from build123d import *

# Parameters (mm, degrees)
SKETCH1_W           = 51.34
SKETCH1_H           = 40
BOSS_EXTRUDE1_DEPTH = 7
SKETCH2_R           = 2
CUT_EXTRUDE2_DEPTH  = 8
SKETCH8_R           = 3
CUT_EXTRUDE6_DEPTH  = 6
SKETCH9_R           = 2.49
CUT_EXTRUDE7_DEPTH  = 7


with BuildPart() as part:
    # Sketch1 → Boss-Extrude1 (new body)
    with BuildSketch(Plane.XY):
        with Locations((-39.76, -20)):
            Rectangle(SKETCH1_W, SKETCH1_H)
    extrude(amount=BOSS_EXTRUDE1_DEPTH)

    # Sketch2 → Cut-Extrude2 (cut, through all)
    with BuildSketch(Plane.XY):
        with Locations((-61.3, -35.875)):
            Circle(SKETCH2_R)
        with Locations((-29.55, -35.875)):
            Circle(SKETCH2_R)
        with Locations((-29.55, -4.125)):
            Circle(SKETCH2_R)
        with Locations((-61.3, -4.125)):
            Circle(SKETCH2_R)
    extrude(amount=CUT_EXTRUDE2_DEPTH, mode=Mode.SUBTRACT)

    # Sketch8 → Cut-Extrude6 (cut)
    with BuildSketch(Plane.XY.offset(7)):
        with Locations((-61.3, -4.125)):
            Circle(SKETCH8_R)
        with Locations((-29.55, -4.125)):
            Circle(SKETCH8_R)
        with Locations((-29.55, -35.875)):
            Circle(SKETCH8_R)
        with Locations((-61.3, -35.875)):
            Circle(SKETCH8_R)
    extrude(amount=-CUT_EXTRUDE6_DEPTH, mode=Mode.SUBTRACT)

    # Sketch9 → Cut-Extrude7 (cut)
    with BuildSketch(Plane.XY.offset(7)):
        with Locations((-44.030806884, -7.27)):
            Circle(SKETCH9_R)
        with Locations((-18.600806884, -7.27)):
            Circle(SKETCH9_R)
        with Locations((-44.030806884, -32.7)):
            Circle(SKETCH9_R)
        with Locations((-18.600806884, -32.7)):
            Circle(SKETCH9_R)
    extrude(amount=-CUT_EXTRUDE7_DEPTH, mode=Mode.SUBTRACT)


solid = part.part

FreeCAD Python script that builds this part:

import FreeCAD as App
import Part
import Sketcher
from FreeCAD import Vector
Q = App.Units.Quantity


def add_polygon(sketch, points):
    """Adds a closed chain of lines whose ends are joined by coincident constraints."""
    first, n = sketch.GeometryCount, len(points)
    for a, b in zip(points, points[1:] + points[:1]):
        sketch.addGeometry(Part.LineSegment(App.Vector(*a, 0), App.Vector(*b, 0)), False)
    for i in range(n):
        sketch.addConstraint(Sketcher.Constraint("Coincident", first + i, 2, first + (i + 1) % n, 1))

doc = App.newDocument("Part")
body = doc.addObject("PartDesign::Body", "Body")

sketch1 = body.newObject("Sketcher::SketchObject", "Sketch")
sketch1.AttachmentSupport = (doc.getObject("XY_Plane"), [""])
sketch1.MapMode = "FlatFace"
add_polygon(sketch1, [(-65, 0), (-65, -40), (-14, -40), (-14, 0)])
sketch1.addConstraint([
    Sketcher.Constraint("Vertical", 0),
    Sketcher.Constraint("Horizontal", 1),
    Sketcher.Constraint("Vertical", 2),
    Sketcher.Constraint("Horizontal", 3),
    Sketcher.Constraint("PointOnObject", 2, 2, -1),
    Sketcher.Constraint("DistanceY", 0, 2, 0, 1, Q("40 mm")),
    Sketcher.Constraint("DistanceX", 1, 1, 1, 2, Q("51.34 mm")),
    Sketcher.Constraint("DistanceX", 0, 2, -1, 1, Q("65.43 mm")),
])
pad1 = body.newObject("PartDesign::Pad", "Pad")
pad1.Profile = sketch1
pad1.Length = 7

sketch2 = body.newObject("Sketcher::SketchObject", "Sketch001")
sketch2.AttachmentSupport = (doc.getObject("XY_Plane"), [""])
sketch2.MapMode = "FlatFace"
sketch2.addGeometry([
    Part.Circle(Vector(-61.3, -35.9, 0), Vector(0, 0, 1), 2),
    Part.Circle(Vector(-29.6, -35.9, 0), Vector(0, 0, 1), 2),
    Part.Circle(Vector(-29.6, -4.1, 0), Vector(0, 0, 1), 2),
    Part.Circle(Vector(-61.3, -4.1, 0), Vector(0, 0, 1), 2),
], False)
sketch2.addConstraint([
    Sketcher.Constraint("Equal", 0, 1),
    Sketcher.Constraint("Equal", 1, 2),
    Sketcher.Constraint("Equal", 2, 3),
    Sketcher.Constraint("Horizontal", 0, 3, 1, 3),
    Sketcher.Constraint("Horizontal", 2, 3, 3, 3),
    Sketcher.Constraint("Vertical", 1, 3, 2, 3),
    Sketcher.Constraint("Vertical", 0, 3, 3, 3),
    Sketcher.Constraint("Diameter", 0, Q("4 mm")),
    Sketcher.Constraint("DistanceX", 0, 3, -1, 1, Q("61.3 mm")),
    Sketcher.Constraint("DistanceX", 1, 3, -1, 1, Q("29.55 mm")),
    Sketcher.Constraint("DistanceY", 1, 3, 2, 3, Q("31.75 mm")),
    Sketcher.Constraint("DistanceY", 0, 3, -1, 1, Q("35.875 mm")),
])
pocket1 = body.newObject("PartDesign::Pocket", "Pocket")
pocket1.Profile = sketch2
pocket1.Type = "ThroughAll"
pocket1.Reversed = True

sketch3 = body.newObject("Sketcher::SketchObject", "Sketch002")
sketch3.AttachmentSupport = (doc.getObject("XY_Plane"), [""])
sketch3.MapMode = "FlatFace"
sketch3.AttachmentOffset = App.Placement(Vector(0, 0, 7), App.Rotation())
sketch3.addGeometry([
    Part.Circle(Vector(-61.3, -4.1, 0), Vector(0, 0, 1), 3),
    Part.Circle(Vector(-29.6, -4.1, 0), Vector(0, 0, 1), 3),
    Part.Circle(Vector(-29.6, -35.9, 0), Vector(0, 0, 1), 3),
    Part.Circle(Vector(-61.3, -35.9, 0), Vector(0, 0, 1), 3),
], False)
sketch3.addConstraint([
    Sketcher.Constraint("Equal", 0, 1),
    Sketcher.Constraint("Equal", 1, 2),
    Sketcher.Constraint("Equal", 2, 3),
    Sketcher.Constraint("Horizontal", 0, 3, 1, 3),
    Sketcher.Constraint("Horizontal", 2, 3, 3, 3),
    Sketcher.Constraint("Vertical", 1, 3, 2, 3),
    Sketcher.Constraint("Vertical", 0, 3, 3, 3),
    Sketcher.Constraint("Diameter", 0, Q("6 mm")),
    Sketcher.Constraint("DistanceX", 0, 3, -1, 1, Q("61.3 mm")),
    Sketcher.Constraint("DistanceX", 1, 3, -1, 1, Q("29.55 mm")),
    Sketcher.Constraint("DistanceY", 2, 3, 1, 3, Q("31.75 mm")),
    Sketcher.Constraint("DistanceY", 0, 3, -1, 1, Q("4.125 mm")),
])
pocket2 = body.newObject("PartDesign::Pocket", "Pocket001")
pocket2.Profile = sketch3
pocket2.Length = 6

sketch4 = body.newObject("Sketcher::SketchObject", "Sketch003")
sketch4.AttachmentSupport = (doc.getObject("XY_Plane"), [""])
sketch4.MapMode = "FlatFace"
sketch4.AttachmentOffset = App.Placement(Vector(0, 0, 7), App.Rotation())
sketch4.addGeometry([
    Part.Circle(Vector(-44, -7.3, 0), Vector(0, 0, 1), 2.5),
    Part.Circle(Vector(-18.6, -7.3, 0), Vector(0, 0, 1), 2.5),
    Part.Circle(Vector(-44, -32.7, 0), Vector(0, 0, 1), 2.5),
    Part.Circle(Vector(-18.6, -32.7, 0), Vector(0, 0, 1), 2.5),
], False)
sketch4.addConstraint([
    Sketcher.Constraint("Equal", 0, 1),
    Sketcher.Constraint("Equal", 1, 2),
    Sketcher.Constraint("Equal", 2, 3),
    Sketcher.Constraint("Horizontal", 0, 3, 1, 3),
    Sketcher.Constraint("Horizontal", 2, 3, 3, 3),
    Sketcher.Constraint("Vertical", 0, 3, 2, 3),
    Sketcher.Constraint("Vertical", 1, 3, 3, 3),
    Sketcher.Constraint("Diameter", 0, Q("4.98 mm")),
    Sketcher.Constraint("DistanceY", 2, 3, -1, 1, Q("32.7 mm")),
    Sketcher.Constraint("DistanceY", 0, 3, -1, 1, Q("7.27 mm")),
    Sketcher.Constraint("DistanceX", 0, 3, 1, 3, Q("25.43 mm")),
    Sketcher.Constraint("DistanceX", 0, 3, -1, 1, Q("44.030807 mm")),
])
pocket3 = body.newObject("PartDesign::Pocket", "Pocket002")
pocket3.Profile = sketch4
pocket3.Length = 7

doc.recompute()
